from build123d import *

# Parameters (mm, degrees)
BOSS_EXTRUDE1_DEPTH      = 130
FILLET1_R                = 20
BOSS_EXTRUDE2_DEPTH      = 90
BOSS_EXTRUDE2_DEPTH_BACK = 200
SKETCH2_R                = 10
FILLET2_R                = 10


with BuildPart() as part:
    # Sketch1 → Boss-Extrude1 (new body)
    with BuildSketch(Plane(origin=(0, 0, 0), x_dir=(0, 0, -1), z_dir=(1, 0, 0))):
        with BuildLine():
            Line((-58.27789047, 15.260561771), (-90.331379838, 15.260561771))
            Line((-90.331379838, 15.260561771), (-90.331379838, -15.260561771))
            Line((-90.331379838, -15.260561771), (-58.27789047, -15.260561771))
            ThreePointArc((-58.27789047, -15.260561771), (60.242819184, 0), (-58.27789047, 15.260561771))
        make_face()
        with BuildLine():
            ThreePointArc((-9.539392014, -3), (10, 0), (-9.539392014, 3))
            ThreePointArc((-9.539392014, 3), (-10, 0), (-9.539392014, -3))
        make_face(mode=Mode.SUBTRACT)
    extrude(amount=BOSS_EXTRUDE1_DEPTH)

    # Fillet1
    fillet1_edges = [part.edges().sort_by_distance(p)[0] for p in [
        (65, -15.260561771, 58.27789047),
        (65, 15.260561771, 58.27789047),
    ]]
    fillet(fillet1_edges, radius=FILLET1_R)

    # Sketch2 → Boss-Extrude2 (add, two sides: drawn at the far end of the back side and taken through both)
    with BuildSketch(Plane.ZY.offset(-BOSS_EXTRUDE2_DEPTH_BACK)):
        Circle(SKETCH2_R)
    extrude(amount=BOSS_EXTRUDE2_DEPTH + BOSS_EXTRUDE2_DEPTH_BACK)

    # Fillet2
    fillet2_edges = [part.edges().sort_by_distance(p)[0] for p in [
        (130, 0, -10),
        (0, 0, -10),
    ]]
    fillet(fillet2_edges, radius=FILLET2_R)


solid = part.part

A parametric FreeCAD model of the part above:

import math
import FreeCAD as App
import Part
import Sketcher
Q = App.Units.Quantity


def edges_at(feature, points):
    """Names of the edges that pass closest to the given points."""
    edges = feature.Shape.Edges
    near = lambda p: min(range(len(edges)), key=lambda i: edges[i].distToShape(Part.Vertex(*p))[0])
    return sorted({f"Edge{near(p) + 1}" for p in points})

doc = App.newDocument("Part")
body = doc.addObject("PartDesign::Body", "Body")

# Sketch on YZ plane
sketch1 = body.newObject("Sketcher::SketchObject", "Sketch")
sketch1.AttachmentSupport = (doc.getObject("YZ_Plane"), [""])
sketch1.MapMode = "FlatFace"
sketch1.addGeometry([
    Part.LineSegment(App.Vector(15, 58, 0), App.Vector(15, 90, 0)),  # 0
    Part.LineSegment(App.Vector(15, 90, 0), App.Vector(-15, 90, 0)),  # 1
    Part.LineSegment(App.Vector(-15, 90, 0), App.Vector(-15, 58, 0)),  # 2
    Part.ArcOfCircle(Part.Circle(App.Vector(0, 0, 0), App.Vector(0, 0, 1), 60), math.radians(105), math.radians(435)),  # 3
    Part.ArcOfCircle(Part.Circle(App.Vector(0, 0, 0), App.Vector(0, 0, 1), 10), math.radians(107), math.radians(433)),  # 4
    Part.ArcOfCircle(Part.Circle(App.Vector(0, 0, 0), App.Vector(0, 0, 1), 10), math.radians(73), math.radians(107)),  # 5
], False)
sketch1.addConstraint([
    Sketcher.Constraint("Coincident", 0, 2, 1, 1),
    Sketcher.Constraint("Coincident", 1, 2, 2, 1),
    Sketcher.Constraint("Coincident", 2, 2, 3, 1),
    Sketcher.Constraint("Coincident", 3, 2, 0, 1),
    Sketcher.Constraint("Tangent", 4, 1, 5, 2),
    Sketcher.Constraint("Coincident", 5, 1, 4, 2),
    Sketcher.Constraint("Vertical", 0),
    Sketcher.Constraint("Horizontal", 1),
    Sketcher.Constraint("Vertical", 2),
    Sketcher.Constraint("Coincident", 3, 3, -1, 1),
    Sketcher.Constraint("Coincident", 4, 3, -1, 1),
    Sketcher.Constraint("Horizontal", 2, 2, 3, 2),
    Sketcher.Constraint("Horizontal", 4, 1, 5, 1),
    Sketcher.Constraint("Radius", 4, Q("10 mm")),
    Sketcher.Constraint("DistanceX", 4, 1, -1, 1, Q("3 mm")),
    Sketcher.Constraint("Radius", 3, Q("60.242819 mm")),
    Sketcher.Constraint("DistanceY", 0, 1, 0, 2, Q("32.053489 mm")),
    Sketcher.Constraint("DistanceY", 4, 1, 2, 2, Q("48.738498 mm")),
])
pad1 = body.newObject("PartDesign::Pad", "Pad")
pad1.Profile = sketch1
pad1.Length = 130
doc.recompute()

fillet = body.newObject("PartDesign::Fillet", "Fillet")
fillet.Base = (pad1, edges_at(pad1, [(65, -15.261, 58.278), (65, 15.261, 58.278)]))
fillet.Radius = 20

# Sketch on YZ plane
sketch2 = body.newObject("Sketcher::SketchObject", "Sketch001")
sketch2.AttachmentSupport = (doc.getObject("YZ_Plane"), [""])
sketch2.MapMode = "FlatFace"
sketch2.addGeometry(Part.Circle(App.Vector(0, 0, 0), App.Vector(0, 0, 1), 10), False)
sketch2.addConstraint([
    Sketcher.Constraint("Coincident", 0, 3, -1, 1),
    Sketcher.Constraint("Diameter", 0, Q("20 mm")),
])
pad2 = body.newObject("PartDesign::Pad", "Pad001")
pad2.Profile = sketch2
pad2.Type = "TwoLengths"
pad2.Length = 90
pad2.Length2 = 200
pad2.Reversed = True
doc.recompute()

fillet2 = body.newObject("PartDesign::Fillet", "Fillet001")
fillet2.Base = (pad2, edges_at(pad2, [(130, 0, -10), (0, 0, -10)]))
fillet2.Radius = 10

doc.recompute()
